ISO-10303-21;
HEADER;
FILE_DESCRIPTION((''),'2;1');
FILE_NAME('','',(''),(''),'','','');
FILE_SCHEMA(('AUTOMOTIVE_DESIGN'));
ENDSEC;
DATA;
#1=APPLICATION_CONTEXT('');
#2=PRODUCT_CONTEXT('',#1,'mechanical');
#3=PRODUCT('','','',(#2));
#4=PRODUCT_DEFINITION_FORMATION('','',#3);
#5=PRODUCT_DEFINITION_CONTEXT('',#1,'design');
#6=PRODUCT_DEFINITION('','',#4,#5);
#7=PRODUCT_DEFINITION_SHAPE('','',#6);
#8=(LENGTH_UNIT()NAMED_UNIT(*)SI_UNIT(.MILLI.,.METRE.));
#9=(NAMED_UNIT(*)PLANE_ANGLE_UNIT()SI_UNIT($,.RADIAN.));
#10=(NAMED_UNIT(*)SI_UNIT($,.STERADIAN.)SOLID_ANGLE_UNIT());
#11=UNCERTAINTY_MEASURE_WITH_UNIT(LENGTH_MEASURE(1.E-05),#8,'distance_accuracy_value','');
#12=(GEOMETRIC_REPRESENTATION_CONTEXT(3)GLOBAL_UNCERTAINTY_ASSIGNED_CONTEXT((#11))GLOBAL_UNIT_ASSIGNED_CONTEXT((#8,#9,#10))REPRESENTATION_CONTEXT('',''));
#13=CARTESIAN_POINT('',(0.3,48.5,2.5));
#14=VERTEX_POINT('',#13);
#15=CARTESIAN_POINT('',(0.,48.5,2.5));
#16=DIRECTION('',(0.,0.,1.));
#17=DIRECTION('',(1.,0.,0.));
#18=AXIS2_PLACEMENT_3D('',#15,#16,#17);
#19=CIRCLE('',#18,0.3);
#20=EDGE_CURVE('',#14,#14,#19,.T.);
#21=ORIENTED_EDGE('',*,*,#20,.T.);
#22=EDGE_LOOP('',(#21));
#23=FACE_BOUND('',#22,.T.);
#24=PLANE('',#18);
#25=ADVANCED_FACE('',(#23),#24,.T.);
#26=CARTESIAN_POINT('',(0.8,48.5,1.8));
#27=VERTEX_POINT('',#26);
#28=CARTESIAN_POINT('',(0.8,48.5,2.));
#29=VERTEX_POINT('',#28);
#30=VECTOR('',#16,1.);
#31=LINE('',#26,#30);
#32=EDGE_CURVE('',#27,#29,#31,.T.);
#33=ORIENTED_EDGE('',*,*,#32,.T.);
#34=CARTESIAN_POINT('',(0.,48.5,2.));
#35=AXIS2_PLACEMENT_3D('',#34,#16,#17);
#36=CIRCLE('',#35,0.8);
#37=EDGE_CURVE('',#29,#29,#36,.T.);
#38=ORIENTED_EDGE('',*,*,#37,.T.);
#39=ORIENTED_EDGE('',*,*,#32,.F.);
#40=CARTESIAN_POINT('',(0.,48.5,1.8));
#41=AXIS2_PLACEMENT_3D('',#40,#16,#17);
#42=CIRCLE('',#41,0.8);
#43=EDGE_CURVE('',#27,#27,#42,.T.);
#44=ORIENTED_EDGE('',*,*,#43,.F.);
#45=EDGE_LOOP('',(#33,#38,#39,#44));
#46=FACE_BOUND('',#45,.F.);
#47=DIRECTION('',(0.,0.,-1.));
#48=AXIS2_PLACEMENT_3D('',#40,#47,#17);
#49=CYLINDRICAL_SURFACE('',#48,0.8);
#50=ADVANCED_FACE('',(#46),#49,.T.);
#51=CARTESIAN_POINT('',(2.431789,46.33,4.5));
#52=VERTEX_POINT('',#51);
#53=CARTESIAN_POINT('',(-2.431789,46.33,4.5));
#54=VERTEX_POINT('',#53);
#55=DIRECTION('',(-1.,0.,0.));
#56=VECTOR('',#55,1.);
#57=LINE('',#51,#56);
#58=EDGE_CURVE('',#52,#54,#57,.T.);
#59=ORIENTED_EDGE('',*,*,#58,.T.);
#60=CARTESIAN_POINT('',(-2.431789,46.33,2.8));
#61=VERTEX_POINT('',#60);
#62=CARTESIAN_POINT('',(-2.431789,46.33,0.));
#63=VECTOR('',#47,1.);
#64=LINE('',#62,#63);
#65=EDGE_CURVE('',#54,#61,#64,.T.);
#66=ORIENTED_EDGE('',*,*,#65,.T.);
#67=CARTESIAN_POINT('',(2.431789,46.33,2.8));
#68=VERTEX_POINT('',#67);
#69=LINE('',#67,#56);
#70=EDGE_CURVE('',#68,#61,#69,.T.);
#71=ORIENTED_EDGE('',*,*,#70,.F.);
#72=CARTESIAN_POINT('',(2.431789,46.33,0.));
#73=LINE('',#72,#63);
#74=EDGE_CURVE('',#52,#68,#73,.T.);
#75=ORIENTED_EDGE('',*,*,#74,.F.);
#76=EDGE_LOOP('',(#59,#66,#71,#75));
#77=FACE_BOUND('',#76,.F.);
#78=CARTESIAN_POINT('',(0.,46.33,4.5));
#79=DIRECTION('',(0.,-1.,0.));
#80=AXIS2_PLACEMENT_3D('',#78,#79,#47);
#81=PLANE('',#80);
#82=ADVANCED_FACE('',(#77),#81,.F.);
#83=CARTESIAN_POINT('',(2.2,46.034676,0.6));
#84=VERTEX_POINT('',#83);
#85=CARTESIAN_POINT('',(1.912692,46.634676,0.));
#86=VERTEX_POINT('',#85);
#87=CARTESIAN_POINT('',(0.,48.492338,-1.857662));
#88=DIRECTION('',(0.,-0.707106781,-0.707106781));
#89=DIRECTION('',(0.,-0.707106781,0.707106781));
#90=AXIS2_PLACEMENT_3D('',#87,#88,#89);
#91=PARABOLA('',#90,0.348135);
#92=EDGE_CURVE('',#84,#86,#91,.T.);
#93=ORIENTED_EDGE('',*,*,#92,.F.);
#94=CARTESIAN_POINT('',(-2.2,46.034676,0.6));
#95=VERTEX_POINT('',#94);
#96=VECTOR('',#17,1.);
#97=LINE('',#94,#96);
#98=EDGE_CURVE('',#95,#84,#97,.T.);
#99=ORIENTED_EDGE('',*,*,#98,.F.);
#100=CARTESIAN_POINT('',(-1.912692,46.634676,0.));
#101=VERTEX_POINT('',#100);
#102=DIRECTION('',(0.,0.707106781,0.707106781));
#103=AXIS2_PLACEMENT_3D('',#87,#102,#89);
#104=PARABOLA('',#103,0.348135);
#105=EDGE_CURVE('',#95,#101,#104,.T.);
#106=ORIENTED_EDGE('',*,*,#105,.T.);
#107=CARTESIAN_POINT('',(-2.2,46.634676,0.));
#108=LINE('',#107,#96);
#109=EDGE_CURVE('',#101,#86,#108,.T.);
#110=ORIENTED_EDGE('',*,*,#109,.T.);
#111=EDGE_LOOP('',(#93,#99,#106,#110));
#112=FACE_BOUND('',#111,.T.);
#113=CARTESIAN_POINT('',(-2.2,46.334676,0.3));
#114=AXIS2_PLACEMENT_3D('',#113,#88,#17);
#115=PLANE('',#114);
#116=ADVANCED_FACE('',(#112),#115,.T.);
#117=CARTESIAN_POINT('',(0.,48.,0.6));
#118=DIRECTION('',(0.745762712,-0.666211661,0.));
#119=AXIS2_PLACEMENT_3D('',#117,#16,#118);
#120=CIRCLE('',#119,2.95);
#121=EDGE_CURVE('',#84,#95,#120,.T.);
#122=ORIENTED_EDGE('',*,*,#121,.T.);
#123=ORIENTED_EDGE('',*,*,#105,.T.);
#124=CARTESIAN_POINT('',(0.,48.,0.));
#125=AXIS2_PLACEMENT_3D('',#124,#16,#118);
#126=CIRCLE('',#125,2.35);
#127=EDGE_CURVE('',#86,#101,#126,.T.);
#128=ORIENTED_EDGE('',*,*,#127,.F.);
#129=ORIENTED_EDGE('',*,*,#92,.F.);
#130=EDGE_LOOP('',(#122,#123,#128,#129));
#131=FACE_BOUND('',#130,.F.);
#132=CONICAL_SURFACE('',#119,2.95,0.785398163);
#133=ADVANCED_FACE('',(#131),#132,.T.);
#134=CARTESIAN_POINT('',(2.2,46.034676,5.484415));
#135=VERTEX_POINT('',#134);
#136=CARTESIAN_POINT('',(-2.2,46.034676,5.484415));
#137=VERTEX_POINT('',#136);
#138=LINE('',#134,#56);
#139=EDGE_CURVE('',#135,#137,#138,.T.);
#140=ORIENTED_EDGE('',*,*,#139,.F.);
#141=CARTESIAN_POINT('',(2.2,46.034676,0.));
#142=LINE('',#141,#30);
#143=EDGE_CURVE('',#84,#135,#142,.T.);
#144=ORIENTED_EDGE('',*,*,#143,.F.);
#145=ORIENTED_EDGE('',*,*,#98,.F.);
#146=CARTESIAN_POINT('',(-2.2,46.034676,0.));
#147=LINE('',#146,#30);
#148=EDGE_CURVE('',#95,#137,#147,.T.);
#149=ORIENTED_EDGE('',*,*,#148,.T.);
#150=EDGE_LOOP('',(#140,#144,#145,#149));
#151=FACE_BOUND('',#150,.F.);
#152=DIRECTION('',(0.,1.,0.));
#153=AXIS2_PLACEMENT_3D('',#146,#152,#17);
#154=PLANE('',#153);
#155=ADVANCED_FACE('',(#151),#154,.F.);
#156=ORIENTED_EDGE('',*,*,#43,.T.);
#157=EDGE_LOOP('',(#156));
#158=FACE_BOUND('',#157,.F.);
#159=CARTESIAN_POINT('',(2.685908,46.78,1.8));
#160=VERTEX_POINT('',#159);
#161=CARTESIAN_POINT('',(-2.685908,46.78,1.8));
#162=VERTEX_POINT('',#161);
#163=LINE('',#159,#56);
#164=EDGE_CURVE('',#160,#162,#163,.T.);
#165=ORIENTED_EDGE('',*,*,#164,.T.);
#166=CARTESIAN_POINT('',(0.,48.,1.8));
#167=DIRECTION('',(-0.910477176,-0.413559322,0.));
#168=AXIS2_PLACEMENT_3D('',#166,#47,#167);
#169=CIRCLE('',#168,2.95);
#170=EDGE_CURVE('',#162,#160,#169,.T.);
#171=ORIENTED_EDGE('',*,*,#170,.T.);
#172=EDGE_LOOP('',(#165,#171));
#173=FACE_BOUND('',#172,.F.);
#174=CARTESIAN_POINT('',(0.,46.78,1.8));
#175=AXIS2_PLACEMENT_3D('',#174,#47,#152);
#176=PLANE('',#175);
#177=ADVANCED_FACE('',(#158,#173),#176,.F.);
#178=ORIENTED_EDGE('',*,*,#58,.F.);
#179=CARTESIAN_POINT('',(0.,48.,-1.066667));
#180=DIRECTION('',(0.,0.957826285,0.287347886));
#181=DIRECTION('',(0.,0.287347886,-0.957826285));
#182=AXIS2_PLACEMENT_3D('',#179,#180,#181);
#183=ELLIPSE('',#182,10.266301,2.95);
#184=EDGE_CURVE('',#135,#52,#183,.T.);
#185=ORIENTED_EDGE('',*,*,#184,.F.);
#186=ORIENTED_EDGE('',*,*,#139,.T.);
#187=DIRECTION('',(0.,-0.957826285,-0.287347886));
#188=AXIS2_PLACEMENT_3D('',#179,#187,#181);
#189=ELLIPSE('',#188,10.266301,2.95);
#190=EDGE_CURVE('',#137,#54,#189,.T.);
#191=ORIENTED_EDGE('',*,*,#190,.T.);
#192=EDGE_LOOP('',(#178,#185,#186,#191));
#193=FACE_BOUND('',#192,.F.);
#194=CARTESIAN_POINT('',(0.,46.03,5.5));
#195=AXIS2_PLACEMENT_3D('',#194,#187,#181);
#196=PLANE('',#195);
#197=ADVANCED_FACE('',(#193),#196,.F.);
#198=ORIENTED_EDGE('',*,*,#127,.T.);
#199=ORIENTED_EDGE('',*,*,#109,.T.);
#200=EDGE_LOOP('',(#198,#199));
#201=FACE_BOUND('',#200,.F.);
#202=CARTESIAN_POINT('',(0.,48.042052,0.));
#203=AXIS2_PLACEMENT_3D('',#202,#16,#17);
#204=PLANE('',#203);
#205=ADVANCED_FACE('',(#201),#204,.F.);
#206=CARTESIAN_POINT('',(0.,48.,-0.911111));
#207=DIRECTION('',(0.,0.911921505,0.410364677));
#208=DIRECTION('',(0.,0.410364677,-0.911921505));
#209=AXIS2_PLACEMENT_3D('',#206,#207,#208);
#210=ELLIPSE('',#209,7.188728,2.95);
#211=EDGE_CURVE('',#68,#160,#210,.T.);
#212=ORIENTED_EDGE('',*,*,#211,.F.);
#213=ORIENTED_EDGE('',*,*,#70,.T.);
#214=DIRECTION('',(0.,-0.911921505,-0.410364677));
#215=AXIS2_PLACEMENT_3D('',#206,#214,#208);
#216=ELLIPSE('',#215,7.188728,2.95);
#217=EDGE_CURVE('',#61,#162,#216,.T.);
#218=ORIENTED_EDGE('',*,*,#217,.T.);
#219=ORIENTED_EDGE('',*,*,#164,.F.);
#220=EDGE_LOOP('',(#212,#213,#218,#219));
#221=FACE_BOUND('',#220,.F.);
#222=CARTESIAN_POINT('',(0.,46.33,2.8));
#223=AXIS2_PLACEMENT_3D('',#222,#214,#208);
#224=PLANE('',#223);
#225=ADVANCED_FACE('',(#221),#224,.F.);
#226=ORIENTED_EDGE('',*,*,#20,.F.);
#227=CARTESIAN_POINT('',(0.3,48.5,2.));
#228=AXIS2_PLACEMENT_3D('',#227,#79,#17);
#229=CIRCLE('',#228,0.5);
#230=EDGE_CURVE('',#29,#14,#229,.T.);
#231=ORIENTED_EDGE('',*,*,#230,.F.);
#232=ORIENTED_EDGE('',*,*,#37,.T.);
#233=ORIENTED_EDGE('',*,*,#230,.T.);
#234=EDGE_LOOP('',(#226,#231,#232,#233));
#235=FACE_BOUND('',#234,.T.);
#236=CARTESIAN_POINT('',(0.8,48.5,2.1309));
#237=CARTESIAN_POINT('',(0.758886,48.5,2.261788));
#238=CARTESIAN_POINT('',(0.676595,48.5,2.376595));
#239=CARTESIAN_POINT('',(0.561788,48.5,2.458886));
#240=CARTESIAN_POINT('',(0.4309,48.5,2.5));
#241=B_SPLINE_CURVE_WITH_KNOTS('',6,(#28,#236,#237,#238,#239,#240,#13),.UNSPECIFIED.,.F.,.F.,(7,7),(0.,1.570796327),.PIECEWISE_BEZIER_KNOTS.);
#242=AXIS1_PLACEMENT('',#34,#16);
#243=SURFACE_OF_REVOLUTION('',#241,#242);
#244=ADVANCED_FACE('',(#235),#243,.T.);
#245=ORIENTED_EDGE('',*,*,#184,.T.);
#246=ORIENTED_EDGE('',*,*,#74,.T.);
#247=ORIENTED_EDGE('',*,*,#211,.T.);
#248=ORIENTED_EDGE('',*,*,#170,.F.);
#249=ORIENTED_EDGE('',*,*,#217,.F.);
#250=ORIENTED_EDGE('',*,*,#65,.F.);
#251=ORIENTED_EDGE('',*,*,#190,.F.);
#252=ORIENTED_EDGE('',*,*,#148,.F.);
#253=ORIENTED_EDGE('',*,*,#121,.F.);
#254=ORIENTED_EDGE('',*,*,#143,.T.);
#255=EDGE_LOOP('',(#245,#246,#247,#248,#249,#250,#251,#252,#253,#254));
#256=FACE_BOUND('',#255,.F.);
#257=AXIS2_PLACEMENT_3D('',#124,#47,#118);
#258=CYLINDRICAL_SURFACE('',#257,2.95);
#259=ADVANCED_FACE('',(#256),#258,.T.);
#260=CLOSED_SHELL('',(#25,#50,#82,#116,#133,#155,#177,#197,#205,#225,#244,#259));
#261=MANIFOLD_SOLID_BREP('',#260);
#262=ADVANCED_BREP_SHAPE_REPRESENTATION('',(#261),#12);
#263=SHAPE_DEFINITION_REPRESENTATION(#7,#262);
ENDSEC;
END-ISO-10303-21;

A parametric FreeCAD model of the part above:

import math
import FreeCAD as App
import Part
import Sketcher

V = App.Vector
Q = App.Units.Quantity


def edges_at(feature, points):
    """Names of the edges that pass closest to the given points."""
    edges = feature.Shape.Edges
    near = lambda p: min(range(len(edges)), key=lambda i: edges[i].distToShape(Part.Vertex(*p))[0])
    return sorted({f"Edge{near(p) + 1}" for p in points})


def add_polygon(sketch, points):
    """Adds a closed chain of lines whose ends are joined by coincident constraints."""
    first, n = sketch.GeometryCount, len(points)
    for a, b in zip(points, points[1:] + points[:1]):
        sketch.addGeometry(Part.LineSegment(App.Vector(*a, 0), App.Vector(*b, 0)), False)
    for i in range(n):
        sketch.addConstraint(Sketcher.Constraint("Coincident", first + i, 2, first + (i + 1) % n, 1))

doc = App.newDocument("Part")
body = doc.addObject("PartDesign::Body", "Body")

# Sketch on XY plane
sketch1 = body.newObject("Sketcher::SketchObject", "Sketch")
sketch1.AttachmentSupport = (doc.getObject("XY_Plane"), [""])
sketch1.MapMode = "FlatFace"
sketch1.addGeometry([
    Part.ArcOfCircle(Part.Circle(V(0, 0, 0), V(0, 0, 1), 3), math.radians(-42), math.radians(222)),
    Part.LineSegment(V(-2.2, -2, 0), V(2.2, -2, 0)),
], False)
sketch1.addConstraint([
    Sketcher.Constraint("Coincident", 0, 1, 1, 2),
    Sketcher.Constraint("Coincident", 1, 1, 0, 2),
    Sketcher.Constraint("Horizontal", 1),
    Sketcher.Constraint("Coincident", 0, 3, -1, 1),
    Sketcher.Constraint("Radius", 0, Q("2.95 mm")),
    Sketcher.Constraint("DistanceX", 1, 1, 1, 2, Q("4.4 mm")),
])
pad1 = body.newObject("PartDesign::Pad", "Pad")
pad1.Profile = sketch1
pad1.Length = 5.5

# Sketch on YZ plane
sketch2 = body.newObject("Sketcher::SketchObject", "Sketch001")
sketch2.AttachmentSupport = (doc.getObject("YZ_Plane"), [""])
sketch2.MapMode = "FlatFace"
add_polygon(sketch2, [(-2, 5.5), (-1.7, 4.5), (-1.7, 2.8), (-1.2, 1.8), (4, 1.8), (4, 5.5)])  # lines 0-5
sketch2.addConstraint([
    Sketcher.Constraint("Vertical", 1),
    Sketcher.Constraint("Horizontal", 3),
    Sketcher.Constraint("Vertical", 4),
    Sketcher.Constraint("Horizontal", 5),
    Sketcher.Constraint("DistanceY", 1, 2, 1, 1, Q("1.7 mm")),
    Sketcher.Constraint("DistanceY", 4, 1, 4, 2, Q("3.7 mm")),
    Sketcher.Constraint("DistanceX", -1, 1, 3, 2, Q("4 mm")),
    Sketcher.Constraint("DistanceY", 2, 2, 1, 2, Q("1 mm")),
    Sketcher.Constraint("DistanceX", 3, 1, 3, 2, Q("5.22 mm")),
    Sketcher.Constraint("DistanceX", 5, 2, 5, 1, Q("5.97 mm")),
    Sketcher.Constraint("DistanceY", -1, 1, 0, 2, Q("4.5 mm")),
    Sketcher.Constraint("DistanceX", 5, 2, 0, 2, Q("0.3 mm")),
])
pocket1 = body.newObject("PartDesign::Pocket", "Pocket")
pocket1.Profile = sketch2
pocket1.Type = "ThroughAll"
pocket1.Midplane = True

# Sketch on XY plane
sketch3 = body.newObject("Sketcher::SketchObject", "Sketch002")
sketch3.AttachmentSupport = (doc.getObject("XY_Plane"), [""])
sketch3.MapMode = "FlatFace"
sketch3.AttachmentOffset = App.Placement(V(0, 0, 1.8), App.Rotation())
sketch3.addGeometry(Part.Circle(V(0, 0.5, 0), V(0, 0, 1), 0.8), False)
sketch3.addConstraint([
    Sketcher.Constraint("PointOnObject", 0, 3, -2),
    Sketcher.Constraint("Diameter", 0, Q("1.6 mm")),
    Sketcher.Constraint("DistanceY", -1, 1, 0, 3, Q("0.5 mm")),
])
pad2 = body.newObject("PartDesign::Pad", "Pad001")
pad2.Profile = sketch3
pad2.Length = 0.7
doc.recompute()

fillet = body.newObject("PartDesign::Fillet", "Fillet")
fillet.Base = (pad2, edges_at(pad2, [(-0.8, 0.5, 2.5)]))
fillet.Radius = 0.5
doc.recompute()

chamfer = body.newObject("PartDesign::Chamfer", "Chamfer")
chamfer.Base = (fillet, edges_at(fillet, [(0, 2.95, 0), (0, -1.965, 0)]))
chamfer.Size = 0.6
body2 = doc.addObject("PartDesign::Body", "Body001")
doc.recompute()

body.Placement = App.Placement(V(0, 48, 0), App.Rotation(V(0, 0, 1), 0))
boolean = body2.newObject("PartDesign::Boolean", "Boolean")
boolean.Type = "Fuse"
boolean.addObjects([body])

doc.recompute()
